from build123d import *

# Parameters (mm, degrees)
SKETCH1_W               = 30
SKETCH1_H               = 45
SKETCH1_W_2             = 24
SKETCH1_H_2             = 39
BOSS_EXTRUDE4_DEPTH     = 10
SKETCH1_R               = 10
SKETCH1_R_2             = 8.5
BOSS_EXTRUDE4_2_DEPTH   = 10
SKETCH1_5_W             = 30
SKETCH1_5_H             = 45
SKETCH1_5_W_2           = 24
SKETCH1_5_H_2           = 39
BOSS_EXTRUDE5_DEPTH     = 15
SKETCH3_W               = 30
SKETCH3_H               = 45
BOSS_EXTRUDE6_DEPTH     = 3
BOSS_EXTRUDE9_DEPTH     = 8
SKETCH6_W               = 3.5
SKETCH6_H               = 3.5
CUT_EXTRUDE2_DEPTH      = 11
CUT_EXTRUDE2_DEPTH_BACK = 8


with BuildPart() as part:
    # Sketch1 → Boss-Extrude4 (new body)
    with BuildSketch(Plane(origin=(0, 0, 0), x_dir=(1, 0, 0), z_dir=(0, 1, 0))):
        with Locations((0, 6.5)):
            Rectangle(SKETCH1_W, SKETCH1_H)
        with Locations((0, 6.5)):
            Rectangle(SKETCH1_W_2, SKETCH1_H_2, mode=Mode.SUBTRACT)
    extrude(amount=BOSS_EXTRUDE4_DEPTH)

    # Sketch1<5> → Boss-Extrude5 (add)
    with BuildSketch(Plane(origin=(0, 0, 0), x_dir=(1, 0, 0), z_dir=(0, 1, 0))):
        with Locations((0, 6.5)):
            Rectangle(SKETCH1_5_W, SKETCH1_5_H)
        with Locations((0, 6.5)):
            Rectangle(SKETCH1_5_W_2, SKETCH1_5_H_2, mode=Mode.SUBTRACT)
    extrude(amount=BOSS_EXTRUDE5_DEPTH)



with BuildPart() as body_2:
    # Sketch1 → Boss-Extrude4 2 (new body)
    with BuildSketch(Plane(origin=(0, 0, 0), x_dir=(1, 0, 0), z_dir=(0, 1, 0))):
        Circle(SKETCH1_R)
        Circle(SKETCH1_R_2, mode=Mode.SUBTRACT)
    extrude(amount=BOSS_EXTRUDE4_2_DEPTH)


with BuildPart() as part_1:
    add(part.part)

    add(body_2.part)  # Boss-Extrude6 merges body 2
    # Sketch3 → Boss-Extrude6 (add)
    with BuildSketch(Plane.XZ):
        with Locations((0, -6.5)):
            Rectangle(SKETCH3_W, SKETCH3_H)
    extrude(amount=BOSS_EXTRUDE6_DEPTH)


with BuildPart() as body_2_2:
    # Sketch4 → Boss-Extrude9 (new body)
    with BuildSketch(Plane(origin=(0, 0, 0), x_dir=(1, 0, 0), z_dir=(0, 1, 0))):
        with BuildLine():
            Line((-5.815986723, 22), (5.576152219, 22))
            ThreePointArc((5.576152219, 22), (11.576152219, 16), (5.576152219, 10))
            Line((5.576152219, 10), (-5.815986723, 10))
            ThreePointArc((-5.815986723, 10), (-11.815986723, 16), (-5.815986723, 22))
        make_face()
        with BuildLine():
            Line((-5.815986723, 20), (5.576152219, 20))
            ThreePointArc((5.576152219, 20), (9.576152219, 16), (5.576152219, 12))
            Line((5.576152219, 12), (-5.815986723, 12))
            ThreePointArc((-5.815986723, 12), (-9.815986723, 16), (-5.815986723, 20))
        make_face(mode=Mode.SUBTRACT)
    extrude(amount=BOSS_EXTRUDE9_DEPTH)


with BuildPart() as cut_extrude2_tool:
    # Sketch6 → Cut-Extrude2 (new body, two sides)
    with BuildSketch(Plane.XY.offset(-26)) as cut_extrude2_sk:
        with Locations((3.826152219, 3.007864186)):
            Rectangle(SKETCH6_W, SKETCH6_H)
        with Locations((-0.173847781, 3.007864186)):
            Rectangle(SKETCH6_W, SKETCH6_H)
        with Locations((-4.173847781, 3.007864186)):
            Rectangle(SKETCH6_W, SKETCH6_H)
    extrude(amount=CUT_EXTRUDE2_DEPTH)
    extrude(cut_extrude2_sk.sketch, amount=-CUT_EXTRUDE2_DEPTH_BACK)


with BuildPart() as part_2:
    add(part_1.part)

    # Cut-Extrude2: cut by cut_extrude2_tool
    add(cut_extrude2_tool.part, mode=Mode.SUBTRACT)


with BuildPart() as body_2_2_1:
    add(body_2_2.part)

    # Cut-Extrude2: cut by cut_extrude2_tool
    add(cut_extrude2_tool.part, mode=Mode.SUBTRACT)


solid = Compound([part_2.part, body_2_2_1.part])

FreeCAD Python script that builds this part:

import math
import FreeCAD as App
import Part
import Sketcher

doc = App.newDocument("Part")
params = doc.addObject("Spreadsheet::Sheet", "Params")
for row, (alias, value) in enumerate([
    ("sketch1_width", "30 mm"),
    ("sketch1_width2", "24 mm"),
    ("sketch1_height", "45 mm"),
    ("sketch1_height2", "39 mm"),
    ("pad1_length", "10 mm"),
    ("sketch2_width", "30 mm"),
    ("sketch2_width2", "24 mm"),
    ("sketch2_height", "45 mm"),
    ("sketch2_height2", "39 mm"),
    ("pad2_length", "15 mm"),
    ("sketch3_diameter", "20 mm"),
    ("sketch3_diameter2", "17 mm"),
    ("pad3_length", "10 mm"),
    ("sketch4_width", "30 mm"),
    ("sketch4_height", "45 mm"),
    ("pad4_length", "3 mm"),
    ("sketch5_radius", "6 mm"),
    ("sketch5_radius2", "4 mm"),
    ("pad5_length", "8 mm"),
    ("sketch6_width", "3.5 mm"),
    ("pad6_length", "11 mm"),
    ("pad6_length2", "8 mm"),
], start=1):
    params.set(f"A{row}", alias)
    params.set(f"B{row}", "=" + value)
    params.setAlias(f"B{row}", alias)

body = doc.addObject("PartDesign::Body", "Body")

# Sketch on XZ plane
sketch1 = doc.addObject("Sketcher::SketchObject", "Sketch")
body.addObject(sketch1)
sketch1.AttachmentSupport = (doc.XZ_Plane, [""])
sketch1.MapMode = "FlatFace"
sketch1.addGeometry([
    Part.LineSegment(App.Vector(-15, -29, 0), App.Vector(-15, 16, 0)),  # 0
    Part.LineSegment(App.Vector(-15, 16, 0), App.Vector(15, 16, 0)),  # 1
    Part.LineSegment(App.Vector(15, 16, 0), App.Vector(15, -29, 0)),  # 2
    Part.LineSegment(App.Vector(15, -29, 0), App.Vector(-15, -29, 0)),  # 3
    Part.LineSegment(App.Vector(12, 13, 0), App.Vector(-12, 13, 0)),  # 4
    Part.LineSegment(App.Vector(-12, 13, 0), App.Vector(-12, -26, 0)),  # 5
    Part.LineSegment(App.Vector(-12, -26, 0), App.Vector(12, -26, 0)),  # 6
    Part.LineSegment(App.Vector(12, -26, 0), App.Vector(12, 13, 0)),  # 7
], False)
sketch1.addConstraint([
    Sketcher.Constraint("Coincident", 0, 2, 1, 1),
    Sketcher.Constraint("Coincident", 1, 2, 2, 1),
    Sketcher.Constraint("Coincident", 2, 2, 3, 1),
    Sketcher.Constraint("Coincident", 3, 2, 0, 1),
    Sketcher.Constraint("Coincident", 4, 2, 5, 1),
    Sketcher.Constraint("Coincident", 5, 2, 6, 1),
    Sketcher.Constraint("Coincident", 6, 2, 7, 1),
    Sketcher.Constraint("Coincident", 7, 2, 4, 1),
    Sketcher.Constraint("Vertical", 0),
    Sketcher.Constraint("Horizontal", 1),
    Sketcher.Constraint("Vertical", 2),
    Sketcher.Constraint("Horizontal", 3),
    Sketcher.Constraint("Horizontal", 4),
    Sketcher.Constraint("Vertical", 5),
    Sketcher.Constraint("Horizontal", 6),
    Sketcher.Constraint("Vertical", 7),
    Sketcher.Constraint("DistanceX", 1, 1, 1, 2, 30.0),
    Sketcher.Constraint("DistanceX", 4, 2, 4, 1, 24.0),
    Sketcher.Constraint("DistanceY", 0, 1, 0, 2, 45.0),
    Sketcher.Constraint("DistanceY", 5, 2, 5, 1, 39.0),
    Sketcher.Constraint("DistanceX", 0, 2, -1, 1, 15.0),
    Sketcher.Constraint("DistanceY", -1, 1, 0, 2, 16.0),
    Sketcher.Constraint("DistanceX", 4, 2, -1, 1, 12.0),
    Sketcher.Constraint("DistanceY", -1, 1, 4, 2, 13.0),
])
sketch1.setExpression("Constraints[16]", "Params.sketch1_width")
sketch1.setExpression("Constraints[17]", "Params.sketch1_width2")
sketch1.setExpression("Constraints[18]", "Params.sketch1_height")
sketch1.setExpression("Constraints[19]", "Params.sketch1_height2")
pad1 = doc.addObject("PartDesign::Pad", "Pad")
body.addObject(pad1)
pad1.Profile = sketch1
pad1.setExpression("Length", "Params.pad1_length")
pad1.Reversed = True

# Sketch on XZ plane
sketch2 = doc.addObject("Sketcher::SketchObject", "Sketch001")
body.addObject(sketch2)
sketch2.AttachmentSupport = (doc.XZ_Plane, [""])
sketch2.MapMode = "FlatFace"
sketch2.addGeometry([
    Part.LineSegment(App.Vector(-15, -29, 0), App.Vector(-15, 16, 0)),  # 0
    Part.LineSegment(App.Vector(-15, 16, 0), App.Vector(15, 16, 0)),  # 1
    Part.LineSegment(App.Vector(15, 16, 0), App.Vector(15, -29, 0)),  # 2
    Part.LineSegment(App.Vector(15, -29, 0), App.Vector(-15, -29, 0)),  # 3
    Part.LineSegment(App.Vector(12, 13, 0), App.Vector(-12, 13, 0)),  # 4
    Part.LineSegment(App.Vector(-12, 13, 0), App.Vector(-12, -26, 0)),  # 5
    Part.LineSegment(App.Vector(-12, -26, 0), App.Vector(12, -26, 0)),  # 6
    Part.LineSegment(App.Vector(12, -26, 0), App.Vector(12, 13, 0)),  # 7
], False)
sketch2.addConstraint([
    Sketcher.Constraint("Coincident", 0, 2, 1, 1),
    Sketcher.Constraint("Coincident", 1, 2, 2, 1),
    Sketcher.Constraint("Coincident", 2, 2, 3, 1),
    Sketcher.Constraint("Coincident", 3, 2, 0, 1),
    Sketcher.Constraint("Coincident", 4, 2, 5, 1),
    Sketcher.Constraint("Coincident", 5, 2, 6, 1),
    Sketcher.Constraint("Coincident", 6, 2, 7, 1),
    Sketcher.Constraint("Coincident", 7, 2, 4, 1),
    Sketcher.Constraint("Vertical", 0),
    Sketcher.Constraint("Horizontal", 1),
    Sketcher.Constraint("Vertical", 2),
    Sketcher.Constraint("Horizontal", 3),
    Sketcher.Constraint("Horizontal", 4),
    Sketcher.Constraint("Vertical", 5),
    Sketcher.Constraint("Horizontal", 6),
    Sketcher.Constraint("Vertical", 7),
    Sketcher.Constraint("DistanceX", 1, 1, 1, 2, 30.0),
    Sketcher.Constraint("DistanceX", 4, 2, 4, 1, 24.0),
    Sketcher.Constraint("DistanceY", 0, 1, 0, 2, 45.0),
    Sketcher.Constraint("DistanceY", 5, 2, 5, 1, 39.0),
    Sketcher.Constraint("DistanceX", 0, 2, -1, 1, 15.0),
    Sketcher.Constraint("DistanceY", -1, 1, 0, 2, 16.0),
    Sketcher.Constraint("DistanceX", 4, 2, -1, 1, 12.0),
    Sketcher.Constraint("DistanceY", -1, 1, 4, 2, 13.0),
])
sketch2.setExpression("Constraints[16]", "Params.sketch2_width")
sketch2.setExpression("Constraints[17]", "Params.sketch2_width2")
sketch2.setExpression("Constraints[18]", "Params.sketch2_height")
sketch2.setExpression("Constraints[19]", "Params.sketch2_height2")
pad2 = doc.addObject("PartDesign::Pad", "Pad001")
body.addObject(pad2)
pad2.Profile = sketch2
pad2.setExpression("Length", "Params.pad2_length")
pad2.Reversed = True
body2 = doc.addObject("PartDesign::Body", "Body001")

# Sketch on XZ plane
sketch3 = doc.addObject("Sketcher::SketchObject", "Sketch002")
body2.addObject(sketch3)
sketch3.AttachmentSupport = (doc.getObject("XZ_Plane001"), [""])
sketch3.MapMode = "FlatFace"
sketch3.addGeometry([
    Part.Circle(App.Vector(0, 0, 0), App.Vector(0, 0, 1), 10),
    Part.Circle(App.Vector(0, 0, 0), App.Vector(0, 0, 1), 8),
], False)
sketch3.addConstraint([
    Sketcher.Constraint("Coincident", 0, 3, -1, 1),
    Sketcher.Constraint("Coincident", 1, 3, -1, 1),
    Sketcher.Constraint("Diameter", 0, 20.0),
    Sketcher.Constraint("Diameter", 1, 17.0),
])
sketch3.setExpression("Constraints[2]", "Params.sketch3_diameter")
sketch3.setExpression("Constraints[3]", "Params.sketch3_diameter2")
pad3 = doc.addObject("PartDesign::Pad", "Pad002")
body2.addObject(pad3)
pad3.Profile = sketch3
pad3.setExpression("Length", "Params.pad3_length")
pad3.Reversed = True
body.AllowCompound = True
doc.recompute()

boolean = doc.addObject("PartDesign::Boolean", "Boolean")
body.addObject(boolean)
boolean.Type = "Fuse"
boolean.addObjects([body2])

# Sketch on XZ plane
sketch4 = doc.addObject("Sketcher::SketchObject", "Sketch003")
body.addObject(sketch4)
sketch4.AttachmentSupport = (doc.XZ_Plane, [""])
sketch4.MapMode = "FlatFace"
sketch4.addGeometry([
    Part.LineSegment(App.Vector(-15, 16, 0), App.Vector(-15, -29, 0)),
    Part.LineSegment(App.Vector(-15, -29, 0), App.Vector(15, -29, 0)),
    Part.LineSegment(App.Vector(15, -29, 0), App.Vector(15, 16, 0)),
    Part.LineSegment(App.Vector(15, 16, 0), App.Vector(-15, 16, 0)),
], False)
sketch4.addConstraint([
    Sketcher.Constraint("Coincident", 0, 2, 1, 1),
    Sketcher.Constraint("Coincident", 1, 2, 2, 1),
    Sketcher.Constraint("Coincident", 2, 2, 3, 1),
    Sketcher.Constraint("Coincident", 3, 2, 0, 1),
    Sketcher.Constraint("Vertical", 0),
    Sketcher.Constraint("Horizontal", 1),
    Sketcher.Constraint("Vertical", 2),
    Sketcher.Constraint("Horizontal", 3),
    Sketcher.Constraint("DistanceX", 1, 1, 1, 2, 30.0),
    Sketcher.Constraint("DistanceY", 0, 2, 0, 1, 45.0),
    Sketcher.Constraint("DistanceX", 0, 2, -1, 1, 15.0),
    Sketcher.Constraint("DistanceY", 0, 2, -1, 1, 29.0),
])
sketch4.setExpression("Constraints[8]", "Params.sketch4_width")
sketch4.setExpression("Constraints[9]", "Params.sketch4_height")
pad4 = doc.addObject("PartDesign::Pad", "Pad003")
body.addObject(pad4)
pad4.Profile = sketch4
pad4.setExpression("Length", "Params.pad4_length")
body3 = doc.addObject("PartDesign::Body", "Body002")

# Sketch on XZ plane
sketch5 = doc.addObject("Sketcher::SketchObject", "Sketch004")
body3.addObject(sketch5)
sketch5.AttachmentSupport = (doc.getObject("XZ_Plane002"), [""])
sketch5.MapMode = "FlatFace"
sketch5.addGeometry([
    Part.LineSegment(App.Vector(5.6, -22, 0), App.Vector(-5.8, -22, 0)),  # 0
    Part.ArcOfCircle(Part.Circle(App.Vector(-5.8, -16, 0), App.Vector(0, 0, 1), 6), math.radians(90), math.radians(270)),  # 1
    Part.LineSegment(App.Vector(-5.8, -10, 0), App.Vector(5.6, -10, 0)),  # 2
    Part.ArcOfCircle(Part.Circle(App.Vector(5.6, -16, 0), App.Vector(0, 0, 1), 6), math.radians(-90), math.radians(90)),  # 3
    Part.LineSegment(App.Vector(-5.8, -20, 0), App.Vector(5.6, -20, 0)),  # 4
    Part.ArcOfCircle(Part.Circle(App.Vector(5.6, -16, 0), App.Vector(0, 0, 1), 4), math.radians(-90), math.radians(90)),  # 5
    Part.LineSegment(App.Vector(5.6, -12, 0), App.Vector(-5.8, -12, 0)),  # 6
    Part.ArcOfCircle(Part.Circle(App.Vector(-5.8, -16, 0), App.Vector(0, 0, 1), 4), math.radians(90), math.radians(270)),  # 7
], False)
sketch5.addConstraint([
    Sketcher.Constraint("Tangent", 0, 2, 1, 2),
    Sketcher.Constraint("Tangent", 1, 1, 2, 1),
    Sketcher.Constraint("Tangent", 2, 2, 3, 2),
    Sketcher.Constraint("Tangent", 3, 1, 0, 1),
    Sketcher.Constraint("Tangent", 4, 2, 5, 1),
    Sketcher.Constraint("Tangent", 5, 2, 6, 1),
    Sketcher.Constraint("Tangent", 6, 2, 7, 1),
    Sketcher.Constraint("Tangent", 7, 2, 4, 1),
    Sketcher.Constraint("Horizontal", 0),
    Sketcher.Constraint("Horizontal", 2),
    Sketcher.Constraint("Horizontal", 4),
    Sketcher.Constraint("Horizontal", 6),
    Sketcher.Constraint("Coincident", 5, 3, 3, 3),
    Sketcher.Constraint("Vertical", 7, 3, 0, 2),
    Sketcher.Constraint("Radius", 1, 6.0),
    Sketcher.Constraint("Radius", 5, 4.0),
    Sketcher.Constraint("DistanceY", 1, 3, -1, 1, 16.0),
    Sketcher.Constraint("DistanceX", 0, 2, 0, 1, 11.392139),
    Sketcher.Constraint("DistanceX", 1, 3, -1, 1, 5.815987),
])
sketch5.setExpression("Constraints[14]", "Params.sketch5_radius")
sketch5.setExpression("Constraints[15]", "Params.sketch5_radius2")
pad5 = doc.addObject("PartDesign::Pad", "Pad004")
body3.addObject(pad5)
pad5.Profile = sketch5
pad5.setExpression("Length", "Params.pad5_length")
pad5.Reversed = True
body4 = doc.addObject("PartDesign::Body", "Body003")
body4.AllowCompound = True

# Sketch on XY plane
sketch6 = doc.addObject("Sketcher::SketchObject", "Sketch005")
body4.addObject(sketch6)
sketch6.AttachmentSupport = (doc.getObject("XY_Plane003"), [""])
sketch6.MapMode = "FlatFace"
sketch6.AttachmentOffset = App.Placement(App.Vector(0, 0, -26), App.Rotation())
sketch6.addGeometry([
    Part.LineSegment(App.Vector(2.1, 4.8, 0), App.Vector(2.1, 1.3, 0)),  # 0
    Part.LineSegment(App.Vector(2.1, 1.3, 0), App.Vector(5.6, 1.3, 0)),  # 1
    Part.LineSegment(App.Vector(5.6, 1.3, 0), App.Vector(5.6, 4.8, 0)),  # 2
    Part.LineSegment(App.Vector(5.6, 4.8, 0), App.Vector(2.1, 4.8, 0)),  # 3
    Part.LineSegment(App.Vector(-1.9, 4.8, 0), App.Vector(-1.9, 1.3, 0)),  # 4
    Part.LineSegment(App.Vector(-1.9, 1.3, 0), App.Vector(1.6, 1.3, 0)),  # 5
    Part.LineSegment(App.Vector(1.6, 1.3, 0), App.Vector(1.6, 4.8, 0)),  # 6
    Part.LineSegment(App.Vector(1.6, 4.8, 0), App.Vector(-1.9, 4.8, 0)),  # 7
    Part.LineSegment(App.Vector(-5.9, 4.8, 0), App.Vector(-5.9, 1.3, 0)),  # 8
    Part.LineSegment(App.Vector(-5.9, 1.3, 0), App.Vector(-2.4, 1.3, 0)),  # 9
    Part.LineSegment(App.Vector(-2.4, 1.3, 0), App.Vector(-2.4, 4.8, 0)),  # 10
    Part.LineSegment(App.Vector(-2.4, 4.8, 0), App.Vector(-5.9, 4.8, 0)),  # 11
], False)
sketch6.addConstraint([
    Sketcher.Constraint("Coincident", 0, 2, 1, 1),
    Sketcher.Constraint("Coincident", 1, 2, 2, 1),
    Sketcher.Constraint("Coincident", 2, 2, 3, 1),
    Sketcher.Constraint("Coincident", 3, 2, 0, 1),
    Sketcher.Constraint("Coincident", 4, 2, 5, 1),
    Sketcher.Constraint("Coincident", 5, 2, 6, 1),
    Sketcher.Constraint("Coincident", 6, 2, 7, 1),
    Sketcher.Constraint("Coincident", 7, 2, 4, 1),
    Sketcher.Constraint("Coincident", 8, 2, 9, 1),
    Sketcher.Constraint("Coincident", 9, 2, 10, 1),
    Sketcher.Constraint("Coincident", 10, 2, 11, 1),
    Sketcher.Constraint("Coincident", 11, 2, 8, 1),
    Sketcher.Constraint("Vertical", 0),
    Sketcher.Constraint("Horizontal", 1),
    Sketcher.Constraint("Vertical", 2),
    Sketcher.Constraint("Horizontal", 3),
    Sketcher.Constraint("Vertical", 4),
    Sketcher.Constraint("Horizontal", 5),
    Sketcher.Constraint("Vertical", 6),
    Sketcher.Constraint("Horizontal", 7),
    Sketcher.Constraint("Vertical", 8),
    Sketcher.Constraint("Horizontal", 9),
    Sketcher.Constraint("Vertical", 10),
    Sketcher.Constraint("Horizontal", 11),
    Sketcher.Constraint("Horizontal", 1, 2, 4, 2),
    Sketcher.Constraint("Horizontal", 3, 2, 6, 2),
    Sketcher.Constraint("Horizontal", 5, 2, 8, 2),
    Sketcher.Constraint("Horizontal", 7, 2, 10, 2),
    Sketcher.Constraint("Equal", 3, 5),
    Sketcher.Constraint("Equal", 7, 9),
    Sketcher.Constraint("Equal", 11, 0),
    Sketcher.Constraint("DistanceX", 1, 1, 1, 2, 3.5),
    Sketcher.Constraint("DistanceX", 4, 2, 0, 2, 4.0),
    Sketcher.Constraint("DistanceX", 8, 2, 4, 2, 4.0),
    Sketcher.Constraint("DistanceX", -1, 1, 0, 2, 2.076152),
    Sketcher.Constraint("DistanceY", -1, 1, 0, 2, 1.257864),
])
sketch6.setExpression("Constraints[31]", "Params.sketch6_width")
pad6 = doc.addObject("PartDesign::Pad", "Pad005")
body4.addObject(pad6)
pad6.Profile = sketch6
pad6.Type = "TwoLengths"
pad6.setExpression("Length", "Params.pad6_length")
pad6.setExpression("Length2", "Params.pad6_length2")
doc.recompute()

body5 = doc.addObject("PartDesign::Body", "Body004")
body5.BaseFeature = body4
boolean2 = doc.addObject("PartDesign::Boolean", "Boolean001")
body.addObject(boolean2)
boolean2.Type = "Cut"
boolean2.addObjects([body5])
doc.recompute()

boolean3 = doc.addObject("PartDesign::Boolean", "Boolean002")
body3.addObject(boolean3)
boolean3.Type = "Cut"
boolean3.addObjects([body4])

doc.recompute()
